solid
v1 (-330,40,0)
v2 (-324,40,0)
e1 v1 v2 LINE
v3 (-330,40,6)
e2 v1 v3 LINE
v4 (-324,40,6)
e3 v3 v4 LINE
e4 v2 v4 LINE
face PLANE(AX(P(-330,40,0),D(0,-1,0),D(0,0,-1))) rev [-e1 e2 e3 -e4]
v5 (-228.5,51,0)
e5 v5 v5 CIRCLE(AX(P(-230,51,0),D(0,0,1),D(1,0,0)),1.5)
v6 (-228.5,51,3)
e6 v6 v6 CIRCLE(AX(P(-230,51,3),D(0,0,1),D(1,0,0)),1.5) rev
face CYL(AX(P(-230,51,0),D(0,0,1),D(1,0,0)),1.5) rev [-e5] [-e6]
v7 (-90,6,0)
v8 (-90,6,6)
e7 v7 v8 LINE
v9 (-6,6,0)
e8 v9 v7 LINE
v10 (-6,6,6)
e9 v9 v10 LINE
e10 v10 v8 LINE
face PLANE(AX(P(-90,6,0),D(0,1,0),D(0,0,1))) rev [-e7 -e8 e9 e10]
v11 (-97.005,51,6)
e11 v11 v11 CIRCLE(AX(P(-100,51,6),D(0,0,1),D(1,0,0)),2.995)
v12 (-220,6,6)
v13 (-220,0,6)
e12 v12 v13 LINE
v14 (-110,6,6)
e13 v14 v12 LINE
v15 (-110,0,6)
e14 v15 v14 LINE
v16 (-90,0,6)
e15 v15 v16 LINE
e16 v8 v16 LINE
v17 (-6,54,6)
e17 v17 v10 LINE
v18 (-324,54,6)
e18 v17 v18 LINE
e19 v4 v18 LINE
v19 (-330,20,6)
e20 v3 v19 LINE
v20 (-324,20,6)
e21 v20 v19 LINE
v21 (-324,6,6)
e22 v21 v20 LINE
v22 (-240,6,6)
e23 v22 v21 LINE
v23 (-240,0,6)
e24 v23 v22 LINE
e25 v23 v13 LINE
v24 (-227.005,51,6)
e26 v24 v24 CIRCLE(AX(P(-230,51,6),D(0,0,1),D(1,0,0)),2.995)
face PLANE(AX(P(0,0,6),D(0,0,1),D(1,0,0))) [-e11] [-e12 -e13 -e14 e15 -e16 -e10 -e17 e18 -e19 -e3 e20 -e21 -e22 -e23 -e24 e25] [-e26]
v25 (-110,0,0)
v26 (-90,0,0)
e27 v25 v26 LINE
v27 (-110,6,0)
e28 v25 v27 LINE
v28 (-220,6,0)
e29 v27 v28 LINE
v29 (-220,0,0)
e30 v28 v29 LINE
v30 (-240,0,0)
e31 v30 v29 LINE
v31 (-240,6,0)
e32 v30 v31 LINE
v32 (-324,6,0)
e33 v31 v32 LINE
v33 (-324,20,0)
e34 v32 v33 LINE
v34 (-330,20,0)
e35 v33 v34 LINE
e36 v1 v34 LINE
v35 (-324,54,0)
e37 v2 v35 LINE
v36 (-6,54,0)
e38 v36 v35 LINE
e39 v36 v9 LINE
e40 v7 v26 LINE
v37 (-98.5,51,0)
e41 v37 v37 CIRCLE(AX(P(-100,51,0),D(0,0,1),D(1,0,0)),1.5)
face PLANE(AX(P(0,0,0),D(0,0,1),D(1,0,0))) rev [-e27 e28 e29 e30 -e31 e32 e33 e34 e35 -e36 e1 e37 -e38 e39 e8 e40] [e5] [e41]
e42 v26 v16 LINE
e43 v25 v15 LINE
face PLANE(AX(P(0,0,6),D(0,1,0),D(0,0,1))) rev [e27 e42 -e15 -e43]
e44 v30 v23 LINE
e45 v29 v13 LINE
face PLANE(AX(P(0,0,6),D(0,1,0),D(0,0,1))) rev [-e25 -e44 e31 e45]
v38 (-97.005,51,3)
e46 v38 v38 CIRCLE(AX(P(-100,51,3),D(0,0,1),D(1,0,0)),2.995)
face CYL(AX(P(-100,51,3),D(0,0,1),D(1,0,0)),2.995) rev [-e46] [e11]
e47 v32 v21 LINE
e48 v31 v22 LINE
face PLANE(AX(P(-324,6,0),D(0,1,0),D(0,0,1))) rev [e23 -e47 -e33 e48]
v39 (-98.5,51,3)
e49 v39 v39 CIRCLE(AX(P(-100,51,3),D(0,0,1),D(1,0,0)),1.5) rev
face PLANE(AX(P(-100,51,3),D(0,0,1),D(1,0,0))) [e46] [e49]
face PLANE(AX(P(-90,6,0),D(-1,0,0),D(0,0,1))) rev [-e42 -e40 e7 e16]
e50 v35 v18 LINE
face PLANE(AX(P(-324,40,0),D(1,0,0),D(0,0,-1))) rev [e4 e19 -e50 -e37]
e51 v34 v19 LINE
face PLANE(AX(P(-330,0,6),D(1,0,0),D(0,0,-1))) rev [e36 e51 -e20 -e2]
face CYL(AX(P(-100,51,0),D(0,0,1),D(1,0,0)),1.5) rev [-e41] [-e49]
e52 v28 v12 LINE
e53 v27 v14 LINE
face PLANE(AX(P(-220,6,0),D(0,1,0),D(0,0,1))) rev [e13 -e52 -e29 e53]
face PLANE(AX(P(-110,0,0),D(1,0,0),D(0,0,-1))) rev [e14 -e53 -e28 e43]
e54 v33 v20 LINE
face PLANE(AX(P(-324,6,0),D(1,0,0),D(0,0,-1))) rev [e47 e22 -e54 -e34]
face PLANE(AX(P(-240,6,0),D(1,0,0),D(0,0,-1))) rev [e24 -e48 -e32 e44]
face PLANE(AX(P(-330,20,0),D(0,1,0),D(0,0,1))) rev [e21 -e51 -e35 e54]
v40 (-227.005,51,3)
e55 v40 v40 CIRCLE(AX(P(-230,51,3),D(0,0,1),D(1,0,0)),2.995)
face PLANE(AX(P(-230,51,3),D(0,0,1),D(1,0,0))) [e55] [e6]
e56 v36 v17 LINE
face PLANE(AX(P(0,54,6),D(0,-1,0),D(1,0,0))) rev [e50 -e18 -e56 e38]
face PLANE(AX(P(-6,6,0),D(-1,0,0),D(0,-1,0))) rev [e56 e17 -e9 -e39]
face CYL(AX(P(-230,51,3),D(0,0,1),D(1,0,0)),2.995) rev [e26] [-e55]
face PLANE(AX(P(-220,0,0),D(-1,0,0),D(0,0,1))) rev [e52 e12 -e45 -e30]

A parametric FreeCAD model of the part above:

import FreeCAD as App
import Part
import Sketcher

V = App.Vector


def add_polygon(sketch, points):
    """Adds a closed chain of lines whose ends are joined by coincident constraints."""
    first, n = sketch.GeometryCount, len(points)
    for a, b in zip(points, points[1:] + points[:1]):
        sketch.addGeometry(Part.LineSegment(App.Vector(*a, 0), App.Vector(*b, 0)), False)
    for i in range(n):
        sketch.addConstraint(Sketcher.Constraint("Coincident", first + i, 2, first + (i + 1) % n, 1))

doc = App.newDocument("Part")
body = doc.addObject("PartDesign::Body", "Body")

sketch1 = doc.addObject("Sketcher::SketchObject", "Sketch")
body.addObject(sketch1)
sketch1.AttachmentSupport = (doc.XY_Plane, [""])
sketch1.MapMode = "FlatFace"
add_polygon(sketch1, [(-330, 54), (-330, 0), (0, 0), (0, 54)])
sketch1.addConstraint(Sketcher.Constraint("Vertical", 0))
sketch1.addConstraint(Sketcher.Constraint("Horizontal", 1))
sketch1.addConstraint(Sketcher.Constraint("Vertical", 2))
sketch1.addConstraint(Sketcher.Constraint("Horizontal", 3))
sketch1.addConstraint(Sketcher.Constraint("Coincident", 1, 2, -1, 1))
sketch1.addConstraint(Sketcher.Constraint("DistanceX", 1, 1, 1, 2, 330.0))
sketch1.addConstraint(Sketcher.Constraint("DistanceY", 0, 2, 0, 1, 54.0))
pad1 = doc.addObject("PartDesign::Pad", "Pad")
body.addObject(pad1)
pad1.Profile = sketch1
pad1.Length = 6

sketch2 = doc.addObject("Sketcher::SketchObject", "Sketch001")
body.addObject(sketch2)
sketch2.AttachmentSupport = (doc.XY_Plane, [""])
sketch2.MapMode = "FlatFace"
sketch2.AttachmentOffset = App.Placement(V(0, 0, 6), App.Rotation())
add_polygon(sketch2, [(-330, 0), (-240, 0), (-240, 6), (-324, 6), (-324, 20), (-330, 20)])
add_polygon(sketch2, [(-90, 6), (-90, 0), (0, 0), (0, 20), (-6, 20), (-6, 6)])
add_polygon(sketch2, [(-330, 54), (-330, 40), (-324, 40), (-324, 54)])
add_polygon(sketch2, [(-6, 54), (-6, 40), (0, 40), (0, 54)])
add_polygon(sketch2, [(-220, 6), (-220, 0), (-110, 0), (-110, 6)])
sketch2.addConstraint(Sketcher.Constraint("Horizontal", 0))
sketch2.addConstraint(Sketcher.Constraint("Vertical", 1))
sketch2.addConstraint(Sketcher.Constraint("Horizontal", 2))
sketch2.addConstraint(Sketcher.Constraint("Vertical", 3))
sketch2.addConstraint(Sketcher.Constraint("Horizontal", 4))
sketch2.addConstraint(Sketcher.Constraint("Vertical", 5))
sketch2.addConstraint(Sketcher.Constraint("Vertical", 6))
sketch2.addConstraint(Sketcher.Constraint("Horizontal", 7))
sketch2.addConstraint(Sketcher.Constraint("Vertical", 8))
sketch2.addConstraint(Sketcher.Constraint("Horizontal", 9))
sketch2.addConstraint(Sketcher.Constraint("Vertical", 10))
sketch2.addConstraint(Sketcher.Constraint("Horizontal", 11))
sketch2.addConstraint(Sketcher.Constraint("Vertical", 12))
sketch2.addConstraint(Sketcher.Constraint("Horizontal", 13))
sketch2.addConstraint(Sketcher.Constraint("Vertical", 14))
sketch2.addConstraint(Sketcher.Constraint("Horizontal", 15))
sketch2.addConstraint(Sketcher.Constraint("Vertical", 16))
sketch2.addConstraint(Sketcher.Constraint("Horizontal", 17))
sketch2.addConstraint(Sketcher.Constraint("Vertical", 18))
sketch2.addConstraint(Sketcher.Constraint("Horizontal", 19))
sketch2.addConstraint(Sketcher.Constraint("Vertical", 20))
sketch2.addConstraint(Sketcher.Constraint("Horizontal", 21))
sketch2.addConstraint(Sketcher.Constraint("Vertical", 22))
sketch2.addConstraint(Sketcher.Constraint("Horizontal", 23))
sketch2.addConstraint(Sketcher.Constraint("Coincident", 7, 2, -1, 1))
sketch2.addConstraint(Sketcher.Constraint("PointOnObject", 0, 2, -1))
sketch2.addConstraint(Sketcher.Constraint("PointOnObject", 17, 2, -2))
sketch2.addConstraint(Sketcher.Constraint("PointOnObject", 20, 2, -1))
sketch2.addConstraint(Sketcher.Constraint("Horizontal", 4, 2, 8, 2))
sketch2.addConstraint(Sketcher.Constraint("Horizontal", 2, 2, 10, 2))
sketch2.addConstraint(Sketcher.Constraint("Horizontal", 13, 2, 16, 2))
sketch2.addConstraint(Sketcher.Constraint("Horizontal", 15, 2, 18, 2))
sketch2.addConstraint(Sketcher.Constraint("Horizontal", 11, 2, 22, 2))
sketch2.addConstraint(Sketcher.Constraint("Vertical", 5, 2, 12, 2))
sketch2.addConstraint(Sketcher.Constraint("Vertical", 3, 2, 13, 2))
sketch2.addConstraint(Sketcher.Constraint("Vertical", 10, 2, 16, 2))
sketch2.addConstraint(Sketcher.Constraint("Equal", 0, 7))
sketch2.addConstraint(Sketcher.Constraint("Equal", 4, 9))
sketch2.addConstraint(Sketcher.Constraint("Equal", 19, 1))
sketch2.addConstraint(Sketcher.Constraint("Equal", 10, 12))
sketch2.addConstraint(Sketcher.Constraint("DistanceX", 0, 1, 0, 2, 90.0))
sketch2.addConstraint(Sketcher.Constraint("DistanceX", 2, 2, 2, 1, 84.0))
sketch2.addConstraint(Sketcher.Constraint("DistanceX", 21, 1, 21, 2, 110.0))
sketch2.addConstraint(Sketcher.Constraint("DistanceY", 3, 1, 3, 2, 14.0))
sketch2.addConstraint(Sketcher.Constraint("DistanceX", 0, 2, -1, 1, 240.0))
sketch2.addConstraint(Sketcher.Constraint("DistanceY", -1, 1, 12, 2, 40.0))
sketch2.addConstraint(Sketcher.Constraint("DistanceX", 20, 2, -1, 1, 220.0))
pocket1 = doc.addObject("PartDesign::Pocket", "Pocket")
body.addObject(pocket1)
pocket1.Profile = sketch2
pocket1.Type = "ThroughAll"

sketch3 = doc.addObject("Sketcher::SketchObject", "Sketch002")
body.addObject(sketch3)
sketch3.AttachmentSupport = (doc.XY_Plane, [""])
sketch3.MapMode = "FlatFace"
sketch3.AttachmentOffset = App.Placement(V(0, 0, 6), App.Rotation())
sketch3.addGeometry(Part.Circle(V(-230, 51, 0), V(0, 0, 1), 1.5), False)
sketch3.addGeometry(Part.Circle(V(-100, 51, 0), V(0, 0, 1), 1.5), False)
add_polygon(sketch3, [(-6, 40), (-6, 20), (0, 20), (0, 40)])
sketch3.addConstraint(Sketcher.Constraint("Vertical", 2))
sketch3.addConstraint(Sketcher.Constraint("Horizontal", 3))
sketch3.addConstraint(Sketcher.Constraint("Vertical", 4))
sketch3.addConstraint(Sketcher.Constraint("Horizontal", 5))
sketch3.addConstraint(Sketcher.Constraint("Equal", 0, 1))
sketch3.addConstraint(Sketcher.Constraint("PointOnObject", 3, 2, -2))
sketch3.addConstraint(Sketcher.Constraint("Horizontal", 0, 3, 1, 3))
sketch3.addConstraint(Sketcher.Constraint("Diameter", 0, 3.0))
sketch3.addConstraint(Sketcher.Constraint("DistanceX", 3, 1, 3, 2, 6.0))
sketch3.addConstraint(Sketcher.Constraint("DistanceY", 2, 2, 2, 1, 20.0))
sketch3.addConstraint(Sketcher.Constraint("DistanceX", 0, 3, -1, 1, 230.0))
sketch3.addConstraint(Sketcher.Constraint("DistanceY", -1, 1, 0, 3, 51.0))
sketch3.addConstraint(Sketcher.Constraint("DistanceX", 1, 3, -1, 1, 100.0))
sketch3.addConstraint(Sketcher.Constraint("DistanceY", -1, 1, 2, 2, 20.0))
pocket2 = doc.addObject("PartDesign::Pocket", "Pocket001")
body.addObject(pocket2)
pocket2.Profile = sketch3
pocket2.Length = 6

sketch4 = doc.addObject("Sketcher::SketchObject", "Sketch003")
body.addObject(sketch4)
sketch4.AttachmentSupport = (doc.XY_Plane, [""])
sketch4.MapMode = "FlatFace"
sketch4.AttachmentOffset = App.Placement(V(0, 0, 6), App.Rotation())
sketch4.addGeometry(Part.Circle(V(-230, 51, 0), V(0, 0, 1), 2.995), False)
sketch4.addGeometry(Part.Circle(V(-100, 51, 0), V(0, 0, 1), 2.995), False)
sketch4.addConstraint(Sketcher.Constraint("Equal", 0, 1))
sketch4.addConstraint(Sketcher.Constraint("Horizontal", 0, 3, 1, 3))
sketch4.addConstraint(Sketcher.Constraint("Diameter", 0, 5.99))
sketch4.addConstraint(Sketcher.Constraint("DistanceX", 0, 3, -1, 1, 230.0))
sketch4.addConstraint(Sketcher.Constraint("DistanceY", -1, 1, 0, 3, 51.0))
sketch4.addConstraint(Sketcher.Constraint("DistanceX", 1, 3, -1, 1, 100.0))
pocket3 = doc.addObject("PartDesign::Pocket", "Pocket002")
body.addObject(pocket3)
pocket3.Profile = sketch4
pocket3.Length = 3

doc.recompute()
